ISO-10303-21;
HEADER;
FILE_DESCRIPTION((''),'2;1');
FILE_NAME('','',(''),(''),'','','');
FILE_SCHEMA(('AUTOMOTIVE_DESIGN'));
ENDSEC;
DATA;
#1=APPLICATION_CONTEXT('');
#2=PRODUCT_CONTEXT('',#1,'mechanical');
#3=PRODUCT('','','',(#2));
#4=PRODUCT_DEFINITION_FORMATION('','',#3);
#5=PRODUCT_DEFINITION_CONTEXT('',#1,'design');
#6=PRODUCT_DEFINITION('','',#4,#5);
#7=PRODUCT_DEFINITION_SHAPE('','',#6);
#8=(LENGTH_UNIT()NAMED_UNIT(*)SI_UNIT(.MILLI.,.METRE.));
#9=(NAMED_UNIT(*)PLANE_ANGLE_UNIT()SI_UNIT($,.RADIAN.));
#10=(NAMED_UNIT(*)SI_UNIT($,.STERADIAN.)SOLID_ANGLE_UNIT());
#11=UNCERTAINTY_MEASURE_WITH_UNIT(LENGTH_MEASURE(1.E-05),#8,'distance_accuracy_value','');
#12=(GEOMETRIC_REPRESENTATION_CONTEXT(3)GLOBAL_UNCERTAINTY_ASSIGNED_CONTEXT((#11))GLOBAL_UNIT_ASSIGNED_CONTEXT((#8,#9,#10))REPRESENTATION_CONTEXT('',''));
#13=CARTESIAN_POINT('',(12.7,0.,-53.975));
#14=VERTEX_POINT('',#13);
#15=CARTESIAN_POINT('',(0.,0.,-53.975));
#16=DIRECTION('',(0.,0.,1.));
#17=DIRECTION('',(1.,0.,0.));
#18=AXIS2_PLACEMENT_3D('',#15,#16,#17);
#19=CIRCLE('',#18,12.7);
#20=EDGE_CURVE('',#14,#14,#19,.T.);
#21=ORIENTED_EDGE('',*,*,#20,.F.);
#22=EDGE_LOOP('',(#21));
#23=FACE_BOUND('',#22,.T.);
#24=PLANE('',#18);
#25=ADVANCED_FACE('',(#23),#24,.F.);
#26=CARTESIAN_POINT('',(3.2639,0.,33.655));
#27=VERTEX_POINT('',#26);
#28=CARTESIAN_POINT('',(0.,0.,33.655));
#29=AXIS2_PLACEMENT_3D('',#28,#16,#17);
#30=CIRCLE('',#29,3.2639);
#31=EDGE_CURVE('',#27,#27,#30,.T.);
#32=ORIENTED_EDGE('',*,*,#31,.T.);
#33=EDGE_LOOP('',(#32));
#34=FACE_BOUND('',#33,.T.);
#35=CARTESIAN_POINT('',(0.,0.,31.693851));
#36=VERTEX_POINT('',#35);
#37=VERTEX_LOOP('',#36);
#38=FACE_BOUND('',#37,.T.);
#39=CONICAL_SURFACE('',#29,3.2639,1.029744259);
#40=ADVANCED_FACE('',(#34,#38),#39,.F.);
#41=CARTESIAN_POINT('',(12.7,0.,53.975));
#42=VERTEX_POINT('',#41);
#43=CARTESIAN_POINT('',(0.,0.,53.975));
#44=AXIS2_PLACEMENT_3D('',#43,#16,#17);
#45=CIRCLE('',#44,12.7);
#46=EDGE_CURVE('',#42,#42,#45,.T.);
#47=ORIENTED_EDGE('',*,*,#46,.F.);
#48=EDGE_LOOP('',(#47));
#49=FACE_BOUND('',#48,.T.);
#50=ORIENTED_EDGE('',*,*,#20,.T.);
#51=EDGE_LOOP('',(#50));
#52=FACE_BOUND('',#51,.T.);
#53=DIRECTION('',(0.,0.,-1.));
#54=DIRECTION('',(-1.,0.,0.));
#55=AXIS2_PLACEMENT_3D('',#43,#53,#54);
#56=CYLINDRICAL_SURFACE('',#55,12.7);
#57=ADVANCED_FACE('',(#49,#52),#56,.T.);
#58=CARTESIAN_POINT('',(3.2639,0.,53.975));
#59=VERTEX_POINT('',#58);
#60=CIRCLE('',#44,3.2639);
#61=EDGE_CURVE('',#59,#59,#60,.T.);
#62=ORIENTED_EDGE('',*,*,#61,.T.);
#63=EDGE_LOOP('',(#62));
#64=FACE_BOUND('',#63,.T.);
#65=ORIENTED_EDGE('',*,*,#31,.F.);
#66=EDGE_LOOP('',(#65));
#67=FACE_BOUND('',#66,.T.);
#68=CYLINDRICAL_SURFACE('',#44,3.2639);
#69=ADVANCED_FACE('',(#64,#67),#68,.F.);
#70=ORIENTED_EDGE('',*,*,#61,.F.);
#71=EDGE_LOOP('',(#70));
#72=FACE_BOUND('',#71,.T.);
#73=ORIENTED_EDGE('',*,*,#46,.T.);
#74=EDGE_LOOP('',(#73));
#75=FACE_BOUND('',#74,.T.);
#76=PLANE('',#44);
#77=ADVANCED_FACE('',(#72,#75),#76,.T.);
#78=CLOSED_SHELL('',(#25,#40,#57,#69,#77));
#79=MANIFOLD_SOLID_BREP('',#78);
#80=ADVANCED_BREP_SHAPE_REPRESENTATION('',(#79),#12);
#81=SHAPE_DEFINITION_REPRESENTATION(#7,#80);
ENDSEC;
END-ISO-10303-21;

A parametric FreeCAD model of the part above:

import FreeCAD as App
import Part
import Sketcher

V = App.Vector
Q = App.Units.Quantity

doc = App.newDocument("Part")
body = doc.addObject("PartDesign::Body", "Body")

sketch1 = body.newObject("Sketcher::SketchObject", "Sketch")
sketch1.AttachmentSupport = (doc.getObject("XY_Plane"), [""])
sketch1.MapMode = "FlatFace"
sketch1.addGeometry(Part.Circle(V(0, 0, 0), V(0, 0, 1), 13), False)
sketch1.addConstraint([
    Sketcher.Constraint("Coincident", 0, 3, -1, 1),
    Sketcher.Constraint("Diameter", 0, Q("1 in")),
])
pad1 = body.newObject("PartDesign::Pad", "Pad")
pad1.Profile = sketch1
pad1.Length = Q("4.25 in")
pad1.Midplane = True

sketch2 = body.newObject("Sketcher::SketchObject", "Sketch001")
sketch2.AttachmentSupport = (doc.getObject("XY_Plane"), [""])
sketch2.MapMode = "FlatFace"
sketch2.AttachmentOffset = App.Placement(V(0, 0, 2.125 * 25.4), App.Rotation())
sketch2.addGeometry(Part.Circle(V(0, 0, 0), V(0, 0, 1), 3.3), False)
sketch2.addConstraint([
    Sketcher.Constraint("Coincident", 0, 3, -1, 1),
    Sketcher.Constraint("Diameter", 0, Q("0.257 in")),
])
doc.recompute()
hole = body.newObject("PartDesign::Hole", "Hole")
hole.Profile = sketch2
hole.ThreadType = "None"
hole.Diameter = Q("0.257 in")
hole.DepthType = "Dimension"
hole.Depth = Q("0.8 in")
hole.DrillPoint = "Angled"
hole.DrillPointAngle = 118

doc.recompute()
